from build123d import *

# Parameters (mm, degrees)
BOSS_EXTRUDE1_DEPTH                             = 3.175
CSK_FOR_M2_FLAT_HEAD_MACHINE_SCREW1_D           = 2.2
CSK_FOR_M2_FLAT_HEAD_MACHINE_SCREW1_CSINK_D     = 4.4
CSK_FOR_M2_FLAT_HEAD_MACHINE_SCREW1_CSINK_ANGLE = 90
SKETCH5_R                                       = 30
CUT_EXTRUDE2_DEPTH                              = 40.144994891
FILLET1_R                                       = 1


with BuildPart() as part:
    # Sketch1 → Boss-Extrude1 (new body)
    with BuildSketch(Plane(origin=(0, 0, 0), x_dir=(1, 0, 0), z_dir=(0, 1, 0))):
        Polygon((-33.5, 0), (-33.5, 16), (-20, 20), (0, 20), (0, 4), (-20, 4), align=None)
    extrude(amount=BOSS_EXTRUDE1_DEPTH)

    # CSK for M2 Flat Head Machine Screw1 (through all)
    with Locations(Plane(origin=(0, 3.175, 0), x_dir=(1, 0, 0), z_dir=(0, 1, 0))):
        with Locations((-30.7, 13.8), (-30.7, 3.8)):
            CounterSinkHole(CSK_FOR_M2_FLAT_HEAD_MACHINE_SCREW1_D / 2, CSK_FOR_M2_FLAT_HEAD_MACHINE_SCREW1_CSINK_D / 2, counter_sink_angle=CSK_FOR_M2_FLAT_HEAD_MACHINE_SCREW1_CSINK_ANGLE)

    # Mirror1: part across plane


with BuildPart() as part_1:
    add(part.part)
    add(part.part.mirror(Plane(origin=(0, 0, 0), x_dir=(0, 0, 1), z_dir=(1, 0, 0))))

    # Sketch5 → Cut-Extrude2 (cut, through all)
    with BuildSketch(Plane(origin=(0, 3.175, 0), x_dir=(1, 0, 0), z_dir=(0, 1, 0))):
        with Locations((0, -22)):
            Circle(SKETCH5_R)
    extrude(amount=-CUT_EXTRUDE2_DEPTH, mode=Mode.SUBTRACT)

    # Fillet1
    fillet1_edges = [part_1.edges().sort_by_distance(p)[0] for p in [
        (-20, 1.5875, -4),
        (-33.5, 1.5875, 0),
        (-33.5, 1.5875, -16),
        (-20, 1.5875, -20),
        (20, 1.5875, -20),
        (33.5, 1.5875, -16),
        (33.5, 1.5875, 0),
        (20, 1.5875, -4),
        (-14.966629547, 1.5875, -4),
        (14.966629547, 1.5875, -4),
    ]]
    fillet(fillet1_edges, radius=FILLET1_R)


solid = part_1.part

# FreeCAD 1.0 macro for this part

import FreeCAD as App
import Part
import Sketcher
Q = App.Units.Quantity


def edges_at(feature, points):
    """Names of the edges that pass closest to the given points."""
    edges = feature.Shape.Edges
    near = lambda p: min(range(len(edges)), key=lambda i: edges[i].distToShape(Part.Vertex(*p))[0])
    return sorted({f"Edge{near(p) + 1}" for p in points})


def add_polygon(sketch, points):
    """Adds a closed chain of lines whose ends are joined by coincident constraints."""
    first, n = sketch.GeometryCount, len(points)
    for a, b in zip(points, points[1:] + points[:1]):
        sketch.addGeometry(Part.LineSegment(App.Vector(*a, 0), App.Vector(*b, 0)), False)
    for i in range(n):
        sketch.addConstraint(Sketcher.Constraint("Coincident", first + i, 2, first + (i + 1) % n, 1))

doc = App.newDocument("Part")
body = doc.addObject("PartDesign::Body", "Body")

# Sketch on XZ plane
sketch1 = body.newObject("Sketcher::SketchObject", "Sketch")
sketch1.AttachmentSupport = (doc.getObject("XZ_Plane"), [""])
sketch1.MapMode = "FlatFace"
add_polygon(sketch1, [(-34, -16), (-34, 0), (-20, -4), (0, -4), (0, -20), (-20, -20)])  # lines 0-5
sketch1.addConstraint(Sketcher.Constraint("Vertical", 0))
sketch1.addConstraint(Sketcher.Constraint("Horizontal", 2))
sketch1.addConstraint(Sketcher.Constraint("Vertical", 3))
sketch1.addConstraint(Sketcher.Constraint("Horizontal", 4))
sketch1.addConstraint(Sketcher.Constraint("PointOnObject", 0, 2, -1))
sketch1.addConstraint(Sketcher.Constraint("PointOnObject", 2, 2, -2))
sketch1.addConstraint(Sketcher.Constraint("Parallel", 1, 5))
sketch1.addConstraint(Sketcher.Constraint("Vertical", 1, 2, 4, 2))
sketch1.addConstraint(Sketcher.Constraint("DistanceX", 2, 1, 2, 2, Q("20 mm")))
sketch1.addConstraint(Sketcher.Constraint("DistanceY", 0, 1, 0, 2, Q("16 mm")))
sketch1.addConstraint(Sketcher.Constraint("DistanceY", 1, 2, -1, 1, Q("4 mm")))
sketch1.addConstraint(Sketcher.Constraint("DistanceX", 0, 2, -1, 1, Q("33.5 mm")))
pad1 = body.newObject("PartDesign::Pad", "Pad")
pad1.Profile = sketch1
pad1.Length = 3.175
pad1.Reversed = True

# Sketch on XZ plane
sketch2 = body.newObject("Sketcher::SketchObject", "Sketch001")
sketch2.AttachmentSupport = (doc.getObject("XZ_Plane"), [""])
sketch2.MapMode = "FlatFace"
sketch2.AttachmentOffset = App.Placement(App.Vector(0, 0, -3.175), App.Rotation())
sketch2.addGeometry(Part.Circle(App.Vector(-30.7, -13.8, 0), App.Vector(0, 0, 1), 1.1), False)
sketch2.addGeometry(Part.Circle(App.Vector(-30.7, -3.8, 0), App.Vector(0, 0, 1), 1.1), False)
sketch2.addConstraint(Sketcher.Constraint("Equal", 0, 1))
sketch2.addConstraint(Sketcher.Constraint("Vertical", 0, 3, 1, 3))
sketch2.addConstraint(Sketcher.Constraint("Diameter", 0, Q("2.2 mm")))
sketch2.addConstraint(Sketcher.Constraint("DistanceY", 0, 3, 1, 3, Q("10 mm")))
sketch2.addConstraint(Sketcher.Constraint("DistanceX", 0, 3, -1, 1, Q("30.7 mm")))
sketch2.addConstraint(Sketcher.Constraint("DistanceY", 0, 3, -1, 1, Q("13.8 mm")))
doc.recompute()
hole = body.newObject("PartDesign::Hole", "Hole")
hole.Profile = sketch2
hole.ThreadType = "None"
hole.Diameter = 2.2
hole.DepthType = "ThroughAll"
hole.HoleCutType = "Countersink"
hole.HoleCutDiameter = 4.4
hole.HoleCutCountersinkAngle = 90
hole.Reversed = True
body2 = doc.addObject("PartDesign::Body", "Body001")
doc.recompute()

body2.BaseFeature = body
doc.recompute()

mirroring = doc.addObject("Part::Mirroring", "Mirroring")
mirroring.Source = body
mirroring.Base = App.Vector(0, 0, 0)
mirroring.Normal = App.Vector(1, 0, 0)
body3 = doc.addObject("PartDesign::Body", "Body002")
body3.BaseFeature = mirroring
boolean = body2.newObject("PartDesign::Boolean", "Boolean")
boolean.Type = "Fuse"
boolean.addObjects([body3])
doc.recompute()

# Sketch on XZ plane
sketch3 = body2.newObject("Sketcher::SketchObject", "Sketch002")
sketch3.AttachmentSupport = (doc.getObject("XZ_Plane001"), [""])
sketch3.MapMode = "FlatFace"
sketch3.AttachmentOffset = App.Placement(App.Vector(0, 0, -3.175), App.Rotation())
sketch3.addGeometry(Part.Circle(App.Vector(0, 22, 0), App.Vector(0, 0, 1), 30), False)
sketch3.addConstraint(Sketcher.Constraint("PointOnObject", 0, 3, -2))
sketch3.addConstraint(Sketcher.Constraint("Diameter", 0, Q("60 mm")))
sketch3.addConstraint(Sketcher.Constraint("DistanceY", -1, 1, 0, 3, Q("22 mm")))
pocket1 = body2.newObject("PartDesign::Pocket", "Pocket")
pocket1.Profile = sketch3
pocket1.Type = "ThroughAll"
pocket1.Reversed = True
doc.recompute()

fillet = body2.newObject("PartDesign::Fillet", "Fillet")
fillet.Base = (pocket1, edges_at(pocket1, [
    (-20, 1.587, -4),
    (-33.5, 1.587, 0),
    (-33.5, 1.587, -16),
    (-20, 1.587, -20),
    (20, 1.587, -20),
    (33.5, 1.587, -16),
    (33.5, 1.587, 0),
    (20, 1.587, -4),
    (-14.967, 1.587, -4),
    (14.967, 1.587, -4),
]))
fillet.Radius = 1
mirroring.Visibility = False

doc.recompute()
